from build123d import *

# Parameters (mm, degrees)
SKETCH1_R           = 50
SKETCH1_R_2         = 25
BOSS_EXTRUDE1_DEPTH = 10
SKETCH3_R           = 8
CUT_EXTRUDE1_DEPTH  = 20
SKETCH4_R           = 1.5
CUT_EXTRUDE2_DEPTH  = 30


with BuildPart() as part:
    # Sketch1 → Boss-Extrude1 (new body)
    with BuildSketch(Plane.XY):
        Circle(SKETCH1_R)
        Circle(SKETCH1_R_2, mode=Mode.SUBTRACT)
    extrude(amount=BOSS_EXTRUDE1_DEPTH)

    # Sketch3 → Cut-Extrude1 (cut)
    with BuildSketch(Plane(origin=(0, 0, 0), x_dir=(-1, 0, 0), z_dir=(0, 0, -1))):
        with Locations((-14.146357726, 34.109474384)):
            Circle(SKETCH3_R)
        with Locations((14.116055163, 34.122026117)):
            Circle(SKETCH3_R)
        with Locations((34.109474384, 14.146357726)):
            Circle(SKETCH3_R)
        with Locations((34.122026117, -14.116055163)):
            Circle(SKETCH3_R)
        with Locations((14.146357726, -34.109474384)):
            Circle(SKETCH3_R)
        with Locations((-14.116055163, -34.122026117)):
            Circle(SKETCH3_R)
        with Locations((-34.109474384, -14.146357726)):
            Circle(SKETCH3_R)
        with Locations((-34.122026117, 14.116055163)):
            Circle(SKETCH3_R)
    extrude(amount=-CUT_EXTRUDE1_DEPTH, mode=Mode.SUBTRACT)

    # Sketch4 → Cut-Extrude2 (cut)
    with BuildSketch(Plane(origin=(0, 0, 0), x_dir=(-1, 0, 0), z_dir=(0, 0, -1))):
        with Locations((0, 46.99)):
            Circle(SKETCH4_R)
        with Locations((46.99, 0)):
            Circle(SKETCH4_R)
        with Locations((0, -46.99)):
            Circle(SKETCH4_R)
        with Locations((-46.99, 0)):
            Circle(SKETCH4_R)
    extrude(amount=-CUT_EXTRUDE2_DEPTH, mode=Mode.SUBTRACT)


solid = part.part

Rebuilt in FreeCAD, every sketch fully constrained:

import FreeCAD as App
import Part
import Sketcher

V = App.Vector

doc = App.newDocument("Part")
body = doc.addObject("PartDesign::Body", "Body")

# Sketch on XY plane
sketch1 = body.newObject("Sketcher::SketchObject", "Sketch")
sketch1.AttachmentSupport = (doc.getObject("XY_Plane"), [""])
sketch1.MapMode = "FlatFace"
sketch1.addGeometry([
    Part.Circle(V(0, 0, 0), V(0, 0, 1), 50),
    Part.Circle(V(0, 0, 0), V(0, 0, 1), 25),
], False)
sketch1.addConstraint([
    Sketcher.Constraint("Coincident", 0, 3, -1, 1),
    Sketcher.Constraint("Coincident", 1, 3, -1, 1),
    Sketcher.Constraint("Diameter", 0, 100.0),
    Sketcher.Constraint("Diameter", 1, 50.0),
])
pad1 = body.newObject("PartDesign::Pad", "Pad")
pad1.Profile = sketch1
pad1.Length = 10

# Sketch on XY plane
sketch2 = body.newObject("Sketcher::SketchObject", "Sketch001")
sketch2.AttachmentSupport = (doc.getObject("XY_Plane"), [""])
sketch2.MapMode = "FlatFace"
sketch2.addGeometry([
    Part.Circle(V(14, 34, 0), V(0, 0, 1), 8),  # 0
    Part.Circle(V(-14, 34, 0), V(0, 0, 1), 8),  # 1
    Part.Circle(V(-34, 14, 0), V(0, 0, 1), 8),  # 2
    Part.Circle(V(-34, -14, 0), V(0, 0, 1), 8),  # 3
    Part.Circle(V(-14, -34, 0), V(0, 0, 1), 8),  # 4
    Part.Circle(V(14, -34, 0), V(0, 0, 1), 8),  # 5
    Part.Circle(V(34, -14, 0), V(0, 0, 1), 8),  # 6
    Part.Circle(V(34, 14, 0), V(0, 0, 1), 8),  # 7
], False)
sketch2.addConstraint([
    Sketcher.Constraint("Equal", 0, 1),
    Sketcher.Constraint("Equal", 1, 2),
    Sketcher.Constraint("Equal", 2, 3),
    Sketcher.Constraint("Equal", 3, 4),
    Sketcher.Constraint("Equal", 4, 5),
    Sketcher.Constraint("Equal", 5, 6),
    Sketcher.Constraint("Equal", 6, 7),
    Sketcher.Constraint("Symmetric", 0, 3, 4, 3, -1, 1),
    Sketcher.Constraint("Symmetric", 1, 3, 5, 3, -1, 1),
    Sketcher.Constraint("Symmetric", 2, 3, 6, 3, -1, 1),
    Sketcher.Constraint("Symmetric", 3, 3, 7, 3, -1, 1),
    Sketcher.Constraint("Diameter", 0, 16.0),
    Sketcher.Constraint("DistanceY", 4, 3, 1, 3, 68.231501),
    Sketcher.Constraint("DistanceX", 3, 3, 6, 3, 68.231501),
    Sketcher.Constraint("DistanceY", 0, 3, 1, 3, 0.012552),
    Sketcher.Constraint("DistanceX", 2, 3, 1, 3, 19.993419),
    Sketcher.Constraint("DistanceY", 2, 3, 1, 3, 19.975668),
    Sketcher.Constraint("DistanceX", 3, 3, 2, 3, 0.012552),
    Sketcher.Constraint("DistanceY", 3, 3, 1, 3, 48.238081),
    Sketcher.Constraint("DistanceX", 3, 3, 4, 3, 19.975668),
])
pocket1 = body.newObject("PartDesign::Pocket", "Pocket")
pocket1.Profile = sketch2
pocket1.Length = 20
pocket1.Reversed = True

# Sketch on XY plane
sketch3 = body.newObject("Sketcher::SketchObject", "Sketch002")
sketch3.AttachmentSupport = (doc.getObject("XY_Plane"), [""])
sketch3.MapMode = "FlatFace"
sketch3.addGeometry([
    Part.Circle(V(0, 47, 0), V(0, 0, 1), 1.5),
    Part.Circle(V(-47, 0, 0), V(0, 0, 1), 1.5),
    Part.Circle(V(0, -47, 0), V(0, 0, 1), 1.5),
    Part.Circle(V(47, 0, 0), V(0, 0, 1), 1.5),
], False)
sketch3.addConstraint([
    Sketcher.Constraint("Equal", 0, 1),
    Sketcher.Constraint("Equal", 1, 2),
    Sketcher.Constraint("Equal", 2, 3),
    Sketcher.Constraint("Symmetric", 0, 3, 2, 3, -1, 1),
    Sketcher.Constraint("Symmetric", 1, 3, 3, 3, -1, 1),
    Sketcher.Constraint("PointOnObject", 0, 3, -2),
    Sketcher.Constraint("PointOnObject", 1, 3, -1),
    Sketcher.Constraint("Diameter", 0, 3.0),
    Sketcher.Constraint("DistanceY", -1, 1, 0, 3, 46.99),
    Sketcher.Constraint("DistanceX", 1, 3, -1, 1, 46.99),
])
pocket2 = body.newObject("PartDesign::Pocket", "Pocket001")
pocket2.Profile = sketch3
pocket2.Length = 30
pocket2.Reversed = True

doc.recompute()
